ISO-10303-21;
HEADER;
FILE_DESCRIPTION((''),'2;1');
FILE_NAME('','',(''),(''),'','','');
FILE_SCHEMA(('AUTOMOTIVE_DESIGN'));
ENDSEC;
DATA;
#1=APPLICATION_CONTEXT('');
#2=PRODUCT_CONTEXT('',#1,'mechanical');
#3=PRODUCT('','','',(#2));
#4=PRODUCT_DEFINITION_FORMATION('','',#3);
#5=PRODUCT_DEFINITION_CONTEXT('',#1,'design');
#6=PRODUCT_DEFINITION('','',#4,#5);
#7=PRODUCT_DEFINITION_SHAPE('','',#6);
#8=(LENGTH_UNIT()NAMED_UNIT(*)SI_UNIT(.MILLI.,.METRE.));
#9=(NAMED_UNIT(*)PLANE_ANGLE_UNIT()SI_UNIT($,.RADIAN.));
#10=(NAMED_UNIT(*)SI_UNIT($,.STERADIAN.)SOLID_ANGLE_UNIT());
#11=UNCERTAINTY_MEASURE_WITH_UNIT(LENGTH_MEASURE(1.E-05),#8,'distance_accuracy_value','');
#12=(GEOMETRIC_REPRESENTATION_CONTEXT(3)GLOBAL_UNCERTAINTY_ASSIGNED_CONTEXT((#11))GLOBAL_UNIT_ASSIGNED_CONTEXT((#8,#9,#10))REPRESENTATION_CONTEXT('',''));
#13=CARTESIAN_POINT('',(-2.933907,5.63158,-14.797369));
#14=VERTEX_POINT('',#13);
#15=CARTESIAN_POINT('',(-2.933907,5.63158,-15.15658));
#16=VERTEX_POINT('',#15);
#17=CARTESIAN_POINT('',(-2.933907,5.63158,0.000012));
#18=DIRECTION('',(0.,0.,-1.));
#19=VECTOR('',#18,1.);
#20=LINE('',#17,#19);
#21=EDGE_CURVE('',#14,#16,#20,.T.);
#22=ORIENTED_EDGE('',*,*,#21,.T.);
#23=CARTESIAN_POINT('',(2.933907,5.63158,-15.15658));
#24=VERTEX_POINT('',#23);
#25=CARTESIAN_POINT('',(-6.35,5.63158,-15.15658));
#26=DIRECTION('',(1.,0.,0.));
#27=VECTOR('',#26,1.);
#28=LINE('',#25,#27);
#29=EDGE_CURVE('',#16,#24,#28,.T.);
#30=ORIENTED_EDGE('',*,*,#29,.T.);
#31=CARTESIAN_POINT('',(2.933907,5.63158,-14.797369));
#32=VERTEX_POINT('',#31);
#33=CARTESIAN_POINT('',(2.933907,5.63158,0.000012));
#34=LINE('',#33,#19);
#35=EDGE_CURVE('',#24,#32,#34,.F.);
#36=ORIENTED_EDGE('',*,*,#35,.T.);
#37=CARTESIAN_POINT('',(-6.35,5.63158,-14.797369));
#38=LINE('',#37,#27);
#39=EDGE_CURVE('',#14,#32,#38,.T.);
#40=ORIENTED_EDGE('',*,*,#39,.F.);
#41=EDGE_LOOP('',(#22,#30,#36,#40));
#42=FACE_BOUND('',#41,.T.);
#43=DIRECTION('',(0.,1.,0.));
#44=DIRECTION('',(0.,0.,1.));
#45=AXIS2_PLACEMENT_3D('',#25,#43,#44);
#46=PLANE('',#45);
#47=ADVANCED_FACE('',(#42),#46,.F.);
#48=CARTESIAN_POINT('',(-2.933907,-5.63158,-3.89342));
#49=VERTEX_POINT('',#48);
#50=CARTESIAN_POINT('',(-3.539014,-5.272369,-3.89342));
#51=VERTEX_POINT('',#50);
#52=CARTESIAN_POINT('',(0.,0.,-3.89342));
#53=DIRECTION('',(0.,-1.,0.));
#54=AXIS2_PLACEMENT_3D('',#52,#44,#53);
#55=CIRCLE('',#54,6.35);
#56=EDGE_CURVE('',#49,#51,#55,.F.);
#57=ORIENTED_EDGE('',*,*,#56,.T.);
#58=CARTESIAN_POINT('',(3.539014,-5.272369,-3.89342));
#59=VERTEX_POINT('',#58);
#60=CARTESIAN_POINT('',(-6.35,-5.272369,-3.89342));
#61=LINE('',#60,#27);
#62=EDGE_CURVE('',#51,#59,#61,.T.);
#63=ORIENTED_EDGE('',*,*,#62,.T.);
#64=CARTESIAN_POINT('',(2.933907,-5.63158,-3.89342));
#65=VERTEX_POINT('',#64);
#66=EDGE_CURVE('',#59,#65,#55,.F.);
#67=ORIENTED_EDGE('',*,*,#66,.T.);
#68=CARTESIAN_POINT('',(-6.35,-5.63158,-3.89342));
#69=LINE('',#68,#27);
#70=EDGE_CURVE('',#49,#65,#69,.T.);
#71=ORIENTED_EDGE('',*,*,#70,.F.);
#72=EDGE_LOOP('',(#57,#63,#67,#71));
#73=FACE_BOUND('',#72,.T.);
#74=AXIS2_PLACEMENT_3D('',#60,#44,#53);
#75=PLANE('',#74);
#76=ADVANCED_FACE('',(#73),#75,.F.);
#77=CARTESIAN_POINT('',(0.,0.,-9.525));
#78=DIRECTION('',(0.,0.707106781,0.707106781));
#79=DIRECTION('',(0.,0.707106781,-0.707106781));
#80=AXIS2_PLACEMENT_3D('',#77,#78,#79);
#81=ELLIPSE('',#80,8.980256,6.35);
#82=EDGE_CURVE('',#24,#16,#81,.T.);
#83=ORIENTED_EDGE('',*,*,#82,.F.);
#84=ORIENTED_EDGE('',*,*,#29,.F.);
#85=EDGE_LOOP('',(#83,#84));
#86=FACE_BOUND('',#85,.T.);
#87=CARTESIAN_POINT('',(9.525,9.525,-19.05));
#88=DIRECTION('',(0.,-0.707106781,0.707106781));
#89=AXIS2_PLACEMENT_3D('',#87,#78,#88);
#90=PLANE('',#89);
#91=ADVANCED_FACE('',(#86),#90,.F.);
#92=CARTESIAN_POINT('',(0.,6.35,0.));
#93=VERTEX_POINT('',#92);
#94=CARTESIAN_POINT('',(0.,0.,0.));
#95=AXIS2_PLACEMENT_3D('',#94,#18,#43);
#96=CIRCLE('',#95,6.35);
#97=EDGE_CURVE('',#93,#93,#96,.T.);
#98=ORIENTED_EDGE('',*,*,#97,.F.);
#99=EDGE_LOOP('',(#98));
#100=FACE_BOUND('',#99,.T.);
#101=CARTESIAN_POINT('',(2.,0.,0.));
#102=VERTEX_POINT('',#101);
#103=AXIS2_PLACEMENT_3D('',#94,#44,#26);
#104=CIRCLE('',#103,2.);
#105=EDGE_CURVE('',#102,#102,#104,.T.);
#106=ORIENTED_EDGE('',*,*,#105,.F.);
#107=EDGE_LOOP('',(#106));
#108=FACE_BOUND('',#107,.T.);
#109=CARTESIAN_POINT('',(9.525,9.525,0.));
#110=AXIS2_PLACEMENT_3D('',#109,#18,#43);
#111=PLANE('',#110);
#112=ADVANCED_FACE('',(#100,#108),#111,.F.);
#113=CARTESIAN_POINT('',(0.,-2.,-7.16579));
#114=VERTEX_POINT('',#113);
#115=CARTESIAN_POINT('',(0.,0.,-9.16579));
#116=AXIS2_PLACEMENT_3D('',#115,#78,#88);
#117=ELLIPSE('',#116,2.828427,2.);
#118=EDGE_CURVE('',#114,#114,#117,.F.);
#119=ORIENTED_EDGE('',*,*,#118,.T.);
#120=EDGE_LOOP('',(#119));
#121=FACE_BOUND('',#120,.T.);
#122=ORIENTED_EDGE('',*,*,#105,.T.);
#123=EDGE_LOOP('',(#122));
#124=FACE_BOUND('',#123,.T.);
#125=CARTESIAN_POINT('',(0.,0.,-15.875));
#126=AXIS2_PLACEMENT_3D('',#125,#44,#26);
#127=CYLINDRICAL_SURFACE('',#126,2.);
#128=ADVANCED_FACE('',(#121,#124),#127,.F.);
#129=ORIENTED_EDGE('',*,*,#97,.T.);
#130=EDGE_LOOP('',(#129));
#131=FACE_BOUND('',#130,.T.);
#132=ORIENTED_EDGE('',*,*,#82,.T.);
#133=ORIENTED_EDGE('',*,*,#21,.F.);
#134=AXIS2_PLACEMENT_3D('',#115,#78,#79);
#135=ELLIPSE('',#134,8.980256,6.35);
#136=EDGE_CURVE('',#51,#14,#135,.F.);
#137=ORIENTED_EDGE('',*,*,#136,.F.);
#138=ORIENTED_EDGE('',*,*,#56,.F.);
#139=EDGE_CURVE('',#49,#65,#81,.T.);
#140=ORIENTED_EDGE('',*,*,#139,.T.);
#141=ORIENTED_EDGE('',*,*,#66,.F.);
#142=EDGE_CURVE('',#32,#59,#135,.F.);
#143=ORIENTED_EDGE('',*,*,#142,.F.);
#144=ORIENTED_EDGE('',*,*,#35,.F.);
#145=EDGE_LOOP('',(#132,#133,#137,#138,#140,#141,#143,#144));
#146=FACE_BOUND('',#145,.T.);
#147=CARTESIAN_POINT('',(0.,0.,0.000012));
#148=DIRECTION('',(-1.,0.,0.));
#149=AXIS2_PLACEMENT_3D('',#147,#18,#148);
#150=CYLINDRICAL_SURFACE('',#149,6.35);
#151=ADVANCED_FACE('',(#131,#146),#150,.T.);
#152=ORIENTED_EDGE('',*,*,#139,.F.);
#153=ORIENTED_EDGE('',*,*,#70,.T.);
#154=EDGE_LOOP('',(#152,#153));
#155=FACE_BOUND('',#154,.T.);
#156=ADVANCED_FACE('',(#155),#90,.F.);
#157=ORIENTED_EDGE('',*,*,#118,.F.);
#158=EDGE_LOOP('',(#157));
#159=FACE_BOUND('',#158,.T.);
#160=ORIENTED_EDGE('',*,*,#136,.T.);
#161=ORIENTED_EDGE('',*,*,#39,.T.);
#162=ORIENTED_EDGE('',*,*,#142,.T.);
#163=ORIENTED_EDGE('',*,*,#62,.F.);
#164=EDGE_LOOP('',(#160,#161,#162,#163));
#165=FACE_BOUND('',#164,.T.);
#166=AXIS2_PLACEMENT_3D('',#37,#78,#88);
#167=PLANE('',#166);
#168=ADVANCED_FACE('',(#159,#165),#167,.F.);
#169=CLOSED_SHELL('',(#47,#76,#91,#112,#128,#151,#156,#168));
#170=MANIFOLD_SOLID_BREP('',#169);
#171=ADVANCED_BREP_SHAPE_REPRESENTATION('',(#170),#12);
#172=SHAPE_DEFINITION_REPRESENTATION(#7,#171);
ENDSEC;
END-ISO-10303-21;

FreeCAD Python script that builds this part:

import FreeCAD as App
import Part
import Sketcher

V = App.Vector
Q = App.Units.Quantity


def add_polygon(sketch, points):
    """Adds a closed chain of lines whose ends are joined by coincident constraints."""
    first, n = sketch.GeometryCount, len(points)
    for a, b in zip(points, points[1:] + points[:1]):
        sketch.addGeometry(Part.LineSegment(App.Vector(*a, 0), App.Vector(*b, 0)), False)
    for i in range(n):
        sketch.addConstraint(Sketcher.Constraint("Coincident", first + i, 2, first + (i + 1) % n, 1))

doc = App.newDocument("Part")
params = doc.addObject("Spreadsheet::Sheet", "Params")
for row, (alias, value) in enumerate([
    ("sketch1_width", "0.75 in"),
    ("pad1_length", "0.75 in"),
    ("sketch2_diameter", "0.5 in"),
], start=1):
    params.set(f"A{row}", alias)
    params.set(f"B{row}", "=" + value)
    params.setAlias(f"B{row}", alias)

body = doc.addObject("PartDesign::Body", "Body")

# Sketch on YZ plane
sketch1 = body.newObject("Sketcher::SketchObject", "Sketch")
sketch1.AttachmentSupport = (doc.getObject("YZ_Plane"), [""])
sketch1.MapMode = "FlatFace"
add_polygon(sketch1, [(-10, 0), (10, -19), (10, 0)])  # lines 0-2
sketch1.addConstraint([
    Sketcher.Constraint("Vertical", 1),
    Sketcher.Constraint("Horizontal", 2),
    Sketcher.Constraint("Symmetric", 1, 2, 2, 2, -1, 1),
    Sketcher.Constraint("Equal", 2, 1),
    Sketcher.Constraint("DistanceX", 2, 2, 2, 1, Q("0.75 in")),
])
sketch1.setExpression("Constraints[7]", "Params.sketch1_width")
pad1 = body.newObject("PartDesign::Pad", "Pad")
pad1.Profile = sketch1
pad1.setExpression("Length", "Params.pad1_length")
pad1.Midplane = True

# Sketch on XY plane
sketch2 = body.newObject("Sketcher::SketchObject", "Sketch001")
sketch2.AttachmentSupport = (doc.getObject("XY_Plane"), [""])
sketch2.MapMode = "FlatFace"
add_polygon(sketch2, [(-14, -14), (-14, 14), (14, 14), (14, -14)])  # lines 0-3
sketch2.addGeometry(Part.Circle(V(0, 0, 0), V(0, 0, 1), 6), False)  # 4
sketch2.addConstraint([
    Sketcher.Constraint("Vertical", 0),
    Sketcher.Constraint("Horizontal", 1),
    Sketcher.Constraint("Vertical", 2),
    Sketcher.Constraint("Horizontal", 3),
    Sketcher.Constraint("Coincident", 4, 3, -1, 1),
    Sketcher.Constraint("Equal", 3, 0),
    Sketcher.Constraint("Diameter", 4, Q("0.5 in")),
    Sketcher.Constraint("DistanceX", 1, 1, 1, 2, Q("27.65 mm")),
    Sketcher.Constraint("DistanceX", 0, 2, -1, 1, Q("13.825 mm")),
    Sketcher.Constraint("DistanceY", -1, 1, 0, 2, Q("13.825192 mm")),
])
sketch2.setExpression("Constraints[10]", "Params.sketch2_diameter")
pocket1 = body.newObject("PartDesign::Pocket", "Pocket")
pocket1.Profile = sketch2
pocket1.Type = "ThroughAll"
pocket1.Midplane = True

# Sketch on XY plane
sketch3 = body.newObject("Sketcher::SketchObject", "Sketch002")
sketch3.AttachmentSupport = (doc.getObject("XY_Plane"), [""])
sketch3.MapMode = "FlatFace"
sketch3.addGeometry(Part.Circle(V(0, 0, 0), V(0, 0, 1), 2), False)
sketch3.addConstraint([
    Sketcher.Constraint("Coincident", 0, 3, -1, 1),
    Sketcher.Constraint("Diameter", 0, Q("4 mm")),
])
pocket2 = body.newObject("PartDesign::Pocket", "Pocket001")
pocket2.Profile = sketch3
pocket2.Type = "ThroughAll"

# Sketch on YZ plane
sketch4 = body.newObject("Sketcher::SketchObject", "Sketch003")
sketch4.AttachmentSupport = (doc.getObject("YZ_Plane"), [""])
sketch4.MapMode = "FlatFace"
add_polygon(sketch4, [(5.63, -15.16), (5.63, -14.8), (-5.27, -3.89), (-5.63, -3.89)])  # lines 0-3
sketch4.addConstraint([
    Sketcher.Constraint("Vertical", 0),
    Sketcher.Constraint("Horizontal", 2),
    Sketcher.Constraint("Parallel", 1, 3),
    Sketcher.Constraint("Equal", 2, 0),
    Sketcher.Constraint("DistanceX", 2, 2, 2, 1, Q("0.35921 mm")),
    Sketcher.Constraint("DistanceX", -1, 1, 0, 2, Q("5.63158 mm")),
    Sketcher.Constraint("DistanceY", 0, 2, -1, 1, Q("14.797369 mm")),
    Sketcher.Constraint("DistanceX", 1, 2, -1, 1, Q("5.272369 mm")),
])
pocket3 = body.newObject("PartDesign::Pocket", "Pocket002")
pocket3.Profile = sketch4
pocket3.Type = "ThroughAll"
pocket3.Midplane = True

doc.recompute()
